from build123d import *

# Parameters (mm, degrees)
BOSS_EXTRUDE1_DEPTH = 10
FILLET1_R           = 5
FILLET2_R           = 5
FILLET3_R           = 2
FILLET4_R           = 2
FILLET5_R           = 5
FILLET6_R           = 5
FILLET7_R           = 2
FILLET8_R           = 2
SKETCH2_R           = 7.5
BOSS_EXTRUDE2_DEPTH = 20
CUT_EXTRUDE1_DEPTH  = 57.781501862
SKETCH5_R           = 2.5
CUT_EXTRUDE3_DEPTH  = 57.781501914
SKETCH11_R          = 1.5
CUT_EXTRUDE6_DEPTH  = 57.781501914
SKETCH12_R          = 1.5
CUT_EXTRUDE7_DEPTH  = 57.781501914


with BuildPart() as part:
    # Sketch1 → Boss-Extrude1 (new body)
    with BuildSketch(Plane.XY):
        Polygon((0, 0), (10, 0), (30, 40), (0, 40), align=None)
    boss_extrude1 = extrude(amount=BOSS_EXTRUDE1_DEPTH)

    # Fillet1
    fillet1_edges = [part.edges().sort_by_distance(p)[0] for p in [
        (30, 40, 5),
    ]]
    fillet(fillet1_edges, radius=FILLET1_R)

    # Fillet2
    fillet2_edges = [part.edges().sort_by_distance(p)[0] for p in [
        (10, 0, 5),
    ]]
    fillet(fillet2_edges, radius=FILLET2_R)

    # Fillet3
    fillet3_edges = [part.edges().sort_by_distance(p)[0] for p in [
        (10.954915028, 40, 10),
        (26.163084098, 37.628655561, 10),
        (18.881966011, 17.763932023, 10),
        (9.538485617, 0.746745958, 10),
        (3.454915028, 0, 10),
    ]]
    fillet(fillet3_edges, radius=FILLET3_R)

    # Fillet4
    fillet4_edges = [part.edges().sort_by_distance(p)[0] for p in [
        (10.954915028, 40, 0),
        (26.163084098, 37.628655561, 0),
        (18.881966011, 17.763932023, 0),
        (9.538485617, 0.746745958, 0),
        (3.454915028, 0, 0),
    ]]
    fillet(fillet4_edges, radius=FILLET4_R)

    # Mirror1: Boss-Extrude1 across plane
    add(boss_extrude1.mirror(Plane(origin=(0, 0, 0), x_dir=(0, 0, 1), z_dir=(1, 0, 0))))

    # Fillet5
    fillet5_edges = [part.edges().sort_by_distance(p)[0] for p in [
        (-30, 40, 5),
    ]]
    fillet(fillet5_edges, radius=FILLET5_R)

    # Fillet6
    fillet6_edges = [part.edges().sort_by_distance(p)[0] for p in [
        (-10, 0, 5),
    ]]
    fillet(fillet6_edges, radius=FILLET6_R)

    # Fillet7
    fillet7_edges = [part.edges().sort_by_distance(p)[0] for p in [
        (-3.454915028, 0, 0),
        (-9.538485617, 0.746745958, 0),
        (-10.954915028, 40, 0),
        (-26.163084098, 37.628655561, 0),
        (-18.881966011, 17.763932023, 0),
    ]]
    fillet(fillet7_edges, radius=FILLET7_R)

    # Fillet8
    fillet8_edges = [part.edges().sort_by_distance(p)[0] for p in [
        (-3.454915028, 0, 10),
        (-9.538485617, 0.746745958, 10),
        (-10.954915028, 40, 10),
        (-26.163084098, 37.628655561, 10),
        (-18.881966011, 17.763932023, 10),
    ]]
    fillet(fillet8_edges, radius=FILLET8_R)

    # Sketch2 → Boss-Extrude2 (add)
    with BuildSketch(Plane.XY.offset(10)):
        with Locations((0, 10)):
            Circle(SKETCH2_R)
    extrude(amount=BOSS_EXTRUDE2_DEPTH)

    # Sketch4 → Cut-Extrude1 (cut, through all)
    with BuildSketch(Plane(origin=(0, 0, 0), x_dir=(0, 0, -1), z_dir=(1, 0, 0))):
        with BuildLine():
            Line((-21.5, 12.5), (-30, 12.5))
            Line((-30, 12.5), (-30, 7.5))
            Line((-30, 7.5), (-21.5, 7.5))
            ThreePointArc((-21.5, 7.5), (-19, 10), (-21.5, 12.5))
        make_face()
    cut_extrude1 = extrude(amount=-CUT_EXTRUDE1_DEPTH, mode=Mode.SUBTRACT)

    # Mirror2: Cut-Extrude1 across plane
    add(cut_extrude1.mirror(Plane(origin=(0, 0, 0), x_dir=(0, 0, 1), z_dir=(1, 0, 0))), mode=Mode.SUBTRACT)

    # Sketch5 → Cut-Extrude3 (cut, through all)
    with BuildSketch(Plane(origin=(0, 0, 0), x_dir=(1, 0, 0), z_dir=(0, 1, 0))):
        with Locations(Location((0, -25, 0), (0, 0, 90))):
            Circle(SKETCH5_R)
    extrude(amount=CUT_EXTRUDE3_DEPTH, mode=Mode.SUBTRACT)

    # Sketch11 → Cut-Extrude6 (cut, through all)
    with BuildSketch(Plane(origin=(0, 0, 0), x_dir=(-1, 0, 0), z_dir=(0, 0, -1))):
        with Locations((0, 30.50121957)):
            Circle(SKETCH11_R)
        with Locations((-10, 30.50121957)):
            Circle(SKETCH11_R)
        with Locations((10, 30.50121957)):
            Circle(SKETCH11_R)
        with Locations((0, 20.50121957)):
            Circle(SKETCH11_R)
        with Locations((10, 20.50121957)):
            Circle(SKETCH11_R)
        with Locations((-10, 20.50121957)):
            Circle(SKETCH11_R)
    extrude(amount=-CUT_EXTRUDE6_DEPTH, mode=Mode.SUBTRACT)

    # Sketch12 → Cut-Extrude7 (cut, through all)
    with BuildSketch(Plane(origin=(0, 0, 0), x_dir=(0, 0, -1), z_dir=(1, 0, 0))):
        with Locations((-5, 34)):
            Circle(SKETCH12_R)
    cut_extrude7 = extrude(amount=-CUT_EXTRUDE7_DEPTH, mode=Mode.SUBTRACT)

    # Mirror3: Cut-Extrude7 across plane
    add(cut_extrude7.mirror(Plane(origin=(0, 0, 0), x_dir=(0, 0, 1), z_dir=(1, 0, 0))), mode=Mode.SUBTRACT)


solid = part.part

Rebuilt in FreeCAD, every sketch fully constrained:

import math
import FreeCAD as App
import Part
import Sketcher
from FreeCAD import Vector
Q = App.Units.Quantity


def edges_at(feature, points):
    """Names of the edges that pass closest to the given points."""
    edges = feature.Shape.Edges
    near = lambda p: min(range(len(edges)), key=lambda i: edges[i].distToShape(Part.Vertex(*p))[0])
    return sorted({f"Edge{near(p) + 1}" for p in points})


def add_polygon(sketch, points):
    """Adds a closed chain of lines whose ends are joined by coincident constraints."""
    first, n = sketch.GeometryCount, len(points)
    for a, b in zip(points, points[1:] + points[:1]):
        sketch.addGeometry(Part.LineSegment(App.Vector(*a, 0), App.Vector(*b, 0)), False)
    for i in range(n):
        sketch.addConstraint(Sketcher.Constraint("Coincident", first + i, 2, first + (i + 1) % n, 1))

doc = App.newDocument("Part")
body = doc.addObject("PartDesign::Body", "Body")

sketch1 = doc.addObject("Sketcher::SketchObject", "Sketch")
body.addObject(sketch1)
sketch1.AttachmentSupport = (doc.XY_Plane, [""])
sketch1.MapMode = "FlatFace"
add_polygon(sketch1, [(0, 0), (10, 0), (30, 40), (0, 40)])
sketch1.addConstraint(Sketcher.Constraint("Horizontal", 0))
sketch1.addConstraint(Sketcher.Constraint("Horizontal", 2))
sketch1.addConstraint(Sketcher.Constraint("Vertical", 3))
sketch1.addConstraint(Sketcher.Constraint("Coincident", 3, 2, -1, 1))
sketch1.addConstraint(Sketcher.Constraint("DistanceX", 0, 1, 0, 2, Q("10 mm")))
sketch1.addConstraint(Sketcher.Constraint("DistanceX", 2, 2, 2, 1, Q("30 mm")))
sketch1.addConstraint(Sketcher.Constraint("DistanceY", 3, 2, 3, 1, Q("40 mm")))
pad1 = doc.addObject("PartDesign::Pad", "Pad")
body.addObject(pad1)
pad1.Profile = sketch1
pad1.Length = 10
doc.recompute()

fillet = doc.addObject("PartDesign::Fillet", "Fillet")
body.addObject(fillet)
fillet.Base = (pad1, edges_at(pad1, [(30, 40, 5)]))
fillet.Radius = 5
doc.recompute()

fillet2 = doc.addObject("PartDesign::Fillet", "Fillet001")
body.addObject(fillet2)
fillet2.Base = (fillet, edges_at(fillet, [(10, 0, 5)]))
fillet2.Radius = 5
doc.recompute()

fillet3 = doc.addObject("PartDesign::Fillet", "Fillet002")
body.addObject(fillet3)
fillet3.Base = (fillet2, edges_at(fillet2, [
    (10.955, 40, 10),
    (26.163, 37.629, 10),
    (18.882, 17.764, 10),
    (9.538, 0.747, 10),
    (3.455, 0, 10),
]))
fillet3.Radius = 2
doc.recompute()

fillet4 = doc.addObject("PartDesign::Fillet", "Fillet003")
body.addObject(fillet4)
fillet4.Base = (fillet3, edges_at(fillet3, [
    (10.955, 40, 0),
    (26.163, 37.629, 0),
    (18.882, 17.764, 0),
    (9.538, 0.747, 0),
    (3.455, 0, 0),
]))
fillet4.Radius = 2
doc.recompute()

mirrored = doc.addObject("PartDesign::Mirrored", "Mirrored")
body.addObject(mirrored)
mirrored.Originals = [pad1]
mirrored.MirrorPlane = (doc.YZ_Plane, [""])
body.Tip = mirrored
doc.recompute()

fillet5 = doc.addObject("PartDesign::Fillet", "Fillet004")
body.addObject(fillet5)
fillet5.Base = (mirrored, edges_at(mirrored, [(-30, 40, 5)]))
fillet5.Radius = 5
doc.recompute()

fillet6 = doc.addObject("PartDesign::Fillet", "Fillet005")
body.addObject(fillet6)
fillet6.Base = (fillet5, edges_at(fillet5, [(-10, 0, 5)]))
fillet6.Radius = 5
doc.recompute()

fillet7 = doc.addObject("PartDesign::Fillet", "Fillet006")
body.addObject(fillet7)
fillet7.Base = (fillet6, edges_at(fillet6, [
    (-3.455, 0, 0),
    (-9.538, 0.747, 0),
    (-10.955, 40, 0),
    (-26.163, 37.629, 0),
    (-18.882, 17.764, 0),
]))
fillet7.Radius = 2
doc.recompute()

fillet8 = doc.addObject("PartDesign::Fillet", "Fillet007")
body.addObject(fillet8)
fillet8.Base = (fillet7, edges_at(fillet7, [
    (-3.455, 0, 10),
    (-9.538, 0.747, 10),
    (-10.955, 40, 10),
    (-26.163, 37.629, 10),
    (-18.882, 17.764, 10),
]))
fillet8.Radius = 2

sketch2 = doc.addObject("Sketcher::SketchObject", "Sketch001")
body.addObject(sketch2)
sketch2.AttachmentSupport = (doc.XY_Plane, [""])
sketch2.MapMode = "FlatFace"
sketch2.AttachmentOffset = App.Placement(Vector(0, 0, 10), App.Rotation())
sketch2.addGeometry(Part.Circle(Vector(0, 10, 0), Vector(0, 0, 1), 8), False)
sketch2.addConstraint(Sketcher.Constraint("PointOnObject", 0, 3, -2))
sketch2.addConstraint(Sketcher.Constraint("Diameter", 0, Q("15 mm")))
sketch2.addConstraint(Sketcher.Constraint("DistanceY", -1, 1, 0, 3, Q("10 mm")))
pad2 = doc.addObject("PartDesign::Pad", "Pad001")
body.addObject(pad2)
pad2.Profile = sketch2
pad2.Length = 20

sketch3 = doc.addObject("Sketcher::SketchObject", "Sketch002")
body.addObject(sketch3)
sketch3.AttachmentSupport = (doc.YZ_Plane, [""])
sketch3.MapMode = "FlatFace"
sketch3.addGeometry(Part.LineSegment(Vector(12.5, 21.5, 0), Vector(12.5, 30, 0)), False)
sketch3.addGeometry(Part.LineSegment(Vector(12.5, 30, 0), Vector(7.5, 30, 0)), False)
sketch3.addGeometry(Part.LineSegment(Vector(7.5, 30, 0), Vector(7.5, 21.5, 0)), False)
sketch3.addGeometry(Part.ArcOfCircle(Part.Circle(Vector(10, 21.5, 0), Vector(0, 0, 1), 2.5), math.radians(180), math.radians(360)), False)
sketch3.addConstraint(Sketcher.Constraint("Coincident", 0, 2, 1, 1))
sketch3.addConstraint(Sketcher.Constraint("Coincident", 1, 2, 2, 1))
sketch3.addConstraint(Sketcher.Constraint("Tangent", 2, 2, 3, 1))
sketch3.addConstraint(Sketcher.Constraint("Tangent", 3, 2, 0, 1))
sketch3.addConstraint(Sketcher.Constraint("Vertical", 0))
sketch3.addConstraint(Sketcher.Constraint("Horizontal", 1))
sketch3.addConstraint(Sketcher.Constraint("Vertical", 2))
sketch3.addConstraint(Sketcher.Constraint("Radius", 3, Q("2.5 mm")))
sketch3.addConstraint(Sketcher.Constraint("DistanceY", 0, 1, 0, 2, Q("8.5 mm")))
sketch3.addConstraint(Sketcher.Constraint("DistanceX", -1, 1, 3, 3, Q("10 mm")))
sketch3.addConstraint(Sketcher.Constraint("DistanceY", -1, 1, 0, 2, Q("30 mm")))
pocket1 = doc.addObject("PartDesign::Pocket", "Pocket")
body.addObject(pocket1)
pocket1.Profile = sketch3
pocket1.Type = "ThroughAll"
doc.recompute()

mirrored2 = doc.addObject("PartDesign::Mirrored", "Mirrored001")
body.addObject(mirrored2)
mirrored2.Originals = [pocket1]
mirrored2.MirrorPlane = (doc.YZ_Plane, [""])
body.Tip = mirrored2

sketch4 = doc.addObject("Sketcher::SketchObject", "Sketch003")
body.addObject(sketch4)
sketch4.AttachmentSupport = (doc.XZ_Plane, [""])
sketch4.MapMode = "FlatFace"
sketch4.addGeometry(Part.Circle(Vector(0, 25, 0), Vector(0, 0, 1), 2.5), False)
sketch4.addConstraint(Sketcher.Constraint("PointOnObject", 0, 3, -2))
sketch4.addConstraint(Sketcher.Constraint("Diameter", 0, Q("5 mm")))
sketch4.addConstraint(Sketcher.Constraint("DistanceY", -1, 1, 0, 3, Q("25 mm")))
pocket2 = doc.addObject("PartDesign::Pocket", "Pocket001")
body.addObject(pocket2)
pocket2.Profile = sketch4
pocket2.Type = "ThroughAll"

sketch5 = doc.addObject("Sketcher::SketchObject", "Sketch004")
body.addObject(sketch5)
sketch5.AttachmentSupport = (doc.XY_Plane, [""])
sketch5.MapMode = "FlatFace"
sketch5.addGeometry(Part.Circle(Vector(0, 30.5, 0), Vector(0, 0, 1), 1.5), False)
sketch5.addGeometry(Part.Circle(Vector(10, 30.5, 0), Vector(0, 0, 1), 1.5), False)
sketch5.addGeometry(Part.Circle(Vector(-10, 30.5, 0), Vector(0, 0, 1), 1.5), False)
sketch5.addGeometry(Part.Circle(Vector(0, 20.5, 0), Vector(0, 0, 1), 1.5), False)
sketch5.addGeometry(Part.Circle(Vector(-10, 20.5, 0), Vector(0, 0, 1), 1.5), False)
sketch5.addGeometry(Part.Circle(Vector(10, 20.5, 0), Vector(0, 0, 1), 1.5), False)
sketch5.addConstraint(Sketcher.Constraint("Equal", 0, 1))
sketch5.addConstraint(Sketcher.Constraint("Equal", 1, 2))
sketch5.addConstraint(Sketcher.Constraint("Equal", 2, 3))
sketch5.addConstraint(Sketcher.Constraint("Equal", 3, 4))
sketch5.addConstraint(Sketcher.Constraint("Equal", 4, 5))
sketch5.addConstraint(Sketcher.Constraint("Symmetric", 1, 3, 2, 3, -2))
sketch5.addConstraint(Sketcher.Constraint("Symmetric", 4, 3, 5, 3, -2))
sketch5.addConstraint(Sketcher.Constraint("PointOnObject", 0, 3, -2))
sketch5.addConstraint(Sketcher.Constraint("PointOnObject", 3, 3, -2))
sketch5.addConstraint(Sketcher.Constraint("Horizontal", 0, 3, 1, 3))
sketch5.addConstraint(Sketcher.Constraint("Horizontal", 3, 3, 4, 3))
sketch5.addConstraint(Sketcher.Constraint("Vertical", 2, 3, 4, 3))
sketch5.addConstraint(Sketcher.Constraint("Diameter", 0, Q("3 mm")))
sketch5.addConstraint(Sketcher.Constraint("DistanceX", -1, 1, 1, 3, Q("10 mm")))
sketch5.addConstraint(Sketcher.Constraint("DistanceY", 3, 3, 0, 3, Q("10 mm")))
sketch5.addConstraint(Sketcher.Constraint("DistanceY", -1, 1, 0, 3, Q("30.50122 mm")))
pocket3 = doc.addObject("PartDesign::Pocket", "Pocket002")
body.addObject(pocket3)
pocket3.Profile = sketch5
pocket3.Type = "ThroughAll"
pocket3.Reversed = True

sketch6 = doc.addObject("Sketcher::SketchObject", "Sketch005")
body.addObject(sketch6)
sketch6.AttachmentSupport = (doc.YZ_Plane, [""])
sketch6.MapMode = "FlatFace"
sketch6.addGeometry(Part.Circle(Vector(34, 5, 0), Vector(0, 0, 1), 1.5), False)
sketch6.addConstraint(Sketcher.Constraint("Diameter", 0, Q("3 mm")))
sketch6.addConstraint(Sketcher.Constraint("DistanceX", -1, 1, 0, 3, Q("34 mm")))
sketch6.addConstraint(Sketcher.Constraint("DistanceY", -1, 1, 0, 3, Q("5 mm")))
pocket4 = doc.addObject("PartDesign::Pocket", "Pocket003")
body.addObject(pocket4)
pocket4.Profile = sketch6
pocket4.Type = "ThroughAll"
doc.recompute()

mirrored3 = doc.addObject("PartDesign::Mirrored", "Mirrored002")
body.addObject(mirrored3)
mirrored3.Originals = [pocket4]
mirrored3.MirrorPlane = (doc.YZ_Plane, [""])
body.Tip = mirrored3

doc.recompute()
